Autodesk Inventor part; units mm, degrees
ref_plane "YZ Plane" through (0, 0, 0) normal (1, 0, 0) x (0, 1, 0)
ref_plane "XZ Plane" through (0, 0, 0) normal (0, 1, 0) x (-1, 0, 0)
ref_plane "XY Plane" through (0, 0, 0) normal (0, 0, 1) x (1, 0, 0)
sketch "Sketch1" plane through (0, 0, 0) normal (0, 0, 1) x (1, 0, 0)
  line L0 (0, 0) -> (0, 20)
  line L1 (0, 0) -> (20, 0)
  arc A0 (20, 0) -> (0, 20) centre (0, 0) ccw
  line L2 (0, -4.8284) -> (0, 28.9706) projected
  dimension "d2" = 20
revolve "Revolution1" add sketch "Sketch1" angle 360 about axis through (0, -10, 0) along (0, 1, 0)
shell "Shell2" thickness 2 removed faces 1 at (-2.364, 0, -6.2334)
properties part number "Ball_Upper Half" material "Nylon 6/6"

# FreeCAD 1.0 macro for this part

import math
import FreeCAD as App
import Part
import Sketcher

V = App.Vector


def faces_at(feature, points):
    """Names of the faces that lie closest to the given points."""
    faces = feature.Shape.Faces
    near = lambda p: min(range(len(faces)), key=lambda i: faces[i].distToShape(Part.Vertex(*p))[0])
    return sorted({f"Face{near(p) + 1}" for p in points})

doc = App.newDocument("Part")
body = doc.addObject("PartDesign::Body", "Body")

# Sketch on XY plane
sketch1 = doc.addObject("Sketcher::SketchObject", "Sketch")
body.addObject(sketch1)
sketch1.AttachmentSupport = (doc.XY_Plane, [""])
sketch1.MapMode = "FlatFace"
sketch1.addGeometry([
    Part.LineSegment(V(0, 20, 0), V(0, 0, 0)),
    Part.LineSegment(V(0, 0, 0), V(20, 0, 0)),
    Part.ArcOfCircle(Part.Circle(V(0, 0, 0), V(0, 0, 1), 20), math.radians(0), math.radians(90)),
], False)
sketch1.addConstraint([
    Sketcher.Constraint("Coincident", 0, 2, 1, 1),
    Sketcher.Constraint("Coincident", 1, 2, 2, 1),
    Sketcher.Constraint("Coincident", 2, 2, 0, 1),
    Sketcher.Constraint("Vertical", 0),
    Sketcher.Constraint("Horizontal", 1),
    Sketcher.Constraint("Coincident", 2, 3, -1, 1),
    Sketcher.Constraint("Coincident", 0, 2, -1, 1),
    Sketcher.Constraint("Radius", 2, 20.0),
])
revolution = doc.addObject("PartDesign::Revolution", "Revolution")
body.addObject(revolution)
revolution.Profile = sketch1
revolution.ReferenceAxis = (sketch1, ["V_Axis"])
revolution.Angle = 360
doc.recompute()

thickness = doc.addObject("PartDesign::Thickness", "Thickness")
body.addObject(thickness)
thickness.Base = (revolution, faces_at(revolution, [(-2.364, 0, -6.233)]))
thickness.Value = 2
thickness.Reversed = True
thickness.Join = "Intersection"

doc.recompute()
